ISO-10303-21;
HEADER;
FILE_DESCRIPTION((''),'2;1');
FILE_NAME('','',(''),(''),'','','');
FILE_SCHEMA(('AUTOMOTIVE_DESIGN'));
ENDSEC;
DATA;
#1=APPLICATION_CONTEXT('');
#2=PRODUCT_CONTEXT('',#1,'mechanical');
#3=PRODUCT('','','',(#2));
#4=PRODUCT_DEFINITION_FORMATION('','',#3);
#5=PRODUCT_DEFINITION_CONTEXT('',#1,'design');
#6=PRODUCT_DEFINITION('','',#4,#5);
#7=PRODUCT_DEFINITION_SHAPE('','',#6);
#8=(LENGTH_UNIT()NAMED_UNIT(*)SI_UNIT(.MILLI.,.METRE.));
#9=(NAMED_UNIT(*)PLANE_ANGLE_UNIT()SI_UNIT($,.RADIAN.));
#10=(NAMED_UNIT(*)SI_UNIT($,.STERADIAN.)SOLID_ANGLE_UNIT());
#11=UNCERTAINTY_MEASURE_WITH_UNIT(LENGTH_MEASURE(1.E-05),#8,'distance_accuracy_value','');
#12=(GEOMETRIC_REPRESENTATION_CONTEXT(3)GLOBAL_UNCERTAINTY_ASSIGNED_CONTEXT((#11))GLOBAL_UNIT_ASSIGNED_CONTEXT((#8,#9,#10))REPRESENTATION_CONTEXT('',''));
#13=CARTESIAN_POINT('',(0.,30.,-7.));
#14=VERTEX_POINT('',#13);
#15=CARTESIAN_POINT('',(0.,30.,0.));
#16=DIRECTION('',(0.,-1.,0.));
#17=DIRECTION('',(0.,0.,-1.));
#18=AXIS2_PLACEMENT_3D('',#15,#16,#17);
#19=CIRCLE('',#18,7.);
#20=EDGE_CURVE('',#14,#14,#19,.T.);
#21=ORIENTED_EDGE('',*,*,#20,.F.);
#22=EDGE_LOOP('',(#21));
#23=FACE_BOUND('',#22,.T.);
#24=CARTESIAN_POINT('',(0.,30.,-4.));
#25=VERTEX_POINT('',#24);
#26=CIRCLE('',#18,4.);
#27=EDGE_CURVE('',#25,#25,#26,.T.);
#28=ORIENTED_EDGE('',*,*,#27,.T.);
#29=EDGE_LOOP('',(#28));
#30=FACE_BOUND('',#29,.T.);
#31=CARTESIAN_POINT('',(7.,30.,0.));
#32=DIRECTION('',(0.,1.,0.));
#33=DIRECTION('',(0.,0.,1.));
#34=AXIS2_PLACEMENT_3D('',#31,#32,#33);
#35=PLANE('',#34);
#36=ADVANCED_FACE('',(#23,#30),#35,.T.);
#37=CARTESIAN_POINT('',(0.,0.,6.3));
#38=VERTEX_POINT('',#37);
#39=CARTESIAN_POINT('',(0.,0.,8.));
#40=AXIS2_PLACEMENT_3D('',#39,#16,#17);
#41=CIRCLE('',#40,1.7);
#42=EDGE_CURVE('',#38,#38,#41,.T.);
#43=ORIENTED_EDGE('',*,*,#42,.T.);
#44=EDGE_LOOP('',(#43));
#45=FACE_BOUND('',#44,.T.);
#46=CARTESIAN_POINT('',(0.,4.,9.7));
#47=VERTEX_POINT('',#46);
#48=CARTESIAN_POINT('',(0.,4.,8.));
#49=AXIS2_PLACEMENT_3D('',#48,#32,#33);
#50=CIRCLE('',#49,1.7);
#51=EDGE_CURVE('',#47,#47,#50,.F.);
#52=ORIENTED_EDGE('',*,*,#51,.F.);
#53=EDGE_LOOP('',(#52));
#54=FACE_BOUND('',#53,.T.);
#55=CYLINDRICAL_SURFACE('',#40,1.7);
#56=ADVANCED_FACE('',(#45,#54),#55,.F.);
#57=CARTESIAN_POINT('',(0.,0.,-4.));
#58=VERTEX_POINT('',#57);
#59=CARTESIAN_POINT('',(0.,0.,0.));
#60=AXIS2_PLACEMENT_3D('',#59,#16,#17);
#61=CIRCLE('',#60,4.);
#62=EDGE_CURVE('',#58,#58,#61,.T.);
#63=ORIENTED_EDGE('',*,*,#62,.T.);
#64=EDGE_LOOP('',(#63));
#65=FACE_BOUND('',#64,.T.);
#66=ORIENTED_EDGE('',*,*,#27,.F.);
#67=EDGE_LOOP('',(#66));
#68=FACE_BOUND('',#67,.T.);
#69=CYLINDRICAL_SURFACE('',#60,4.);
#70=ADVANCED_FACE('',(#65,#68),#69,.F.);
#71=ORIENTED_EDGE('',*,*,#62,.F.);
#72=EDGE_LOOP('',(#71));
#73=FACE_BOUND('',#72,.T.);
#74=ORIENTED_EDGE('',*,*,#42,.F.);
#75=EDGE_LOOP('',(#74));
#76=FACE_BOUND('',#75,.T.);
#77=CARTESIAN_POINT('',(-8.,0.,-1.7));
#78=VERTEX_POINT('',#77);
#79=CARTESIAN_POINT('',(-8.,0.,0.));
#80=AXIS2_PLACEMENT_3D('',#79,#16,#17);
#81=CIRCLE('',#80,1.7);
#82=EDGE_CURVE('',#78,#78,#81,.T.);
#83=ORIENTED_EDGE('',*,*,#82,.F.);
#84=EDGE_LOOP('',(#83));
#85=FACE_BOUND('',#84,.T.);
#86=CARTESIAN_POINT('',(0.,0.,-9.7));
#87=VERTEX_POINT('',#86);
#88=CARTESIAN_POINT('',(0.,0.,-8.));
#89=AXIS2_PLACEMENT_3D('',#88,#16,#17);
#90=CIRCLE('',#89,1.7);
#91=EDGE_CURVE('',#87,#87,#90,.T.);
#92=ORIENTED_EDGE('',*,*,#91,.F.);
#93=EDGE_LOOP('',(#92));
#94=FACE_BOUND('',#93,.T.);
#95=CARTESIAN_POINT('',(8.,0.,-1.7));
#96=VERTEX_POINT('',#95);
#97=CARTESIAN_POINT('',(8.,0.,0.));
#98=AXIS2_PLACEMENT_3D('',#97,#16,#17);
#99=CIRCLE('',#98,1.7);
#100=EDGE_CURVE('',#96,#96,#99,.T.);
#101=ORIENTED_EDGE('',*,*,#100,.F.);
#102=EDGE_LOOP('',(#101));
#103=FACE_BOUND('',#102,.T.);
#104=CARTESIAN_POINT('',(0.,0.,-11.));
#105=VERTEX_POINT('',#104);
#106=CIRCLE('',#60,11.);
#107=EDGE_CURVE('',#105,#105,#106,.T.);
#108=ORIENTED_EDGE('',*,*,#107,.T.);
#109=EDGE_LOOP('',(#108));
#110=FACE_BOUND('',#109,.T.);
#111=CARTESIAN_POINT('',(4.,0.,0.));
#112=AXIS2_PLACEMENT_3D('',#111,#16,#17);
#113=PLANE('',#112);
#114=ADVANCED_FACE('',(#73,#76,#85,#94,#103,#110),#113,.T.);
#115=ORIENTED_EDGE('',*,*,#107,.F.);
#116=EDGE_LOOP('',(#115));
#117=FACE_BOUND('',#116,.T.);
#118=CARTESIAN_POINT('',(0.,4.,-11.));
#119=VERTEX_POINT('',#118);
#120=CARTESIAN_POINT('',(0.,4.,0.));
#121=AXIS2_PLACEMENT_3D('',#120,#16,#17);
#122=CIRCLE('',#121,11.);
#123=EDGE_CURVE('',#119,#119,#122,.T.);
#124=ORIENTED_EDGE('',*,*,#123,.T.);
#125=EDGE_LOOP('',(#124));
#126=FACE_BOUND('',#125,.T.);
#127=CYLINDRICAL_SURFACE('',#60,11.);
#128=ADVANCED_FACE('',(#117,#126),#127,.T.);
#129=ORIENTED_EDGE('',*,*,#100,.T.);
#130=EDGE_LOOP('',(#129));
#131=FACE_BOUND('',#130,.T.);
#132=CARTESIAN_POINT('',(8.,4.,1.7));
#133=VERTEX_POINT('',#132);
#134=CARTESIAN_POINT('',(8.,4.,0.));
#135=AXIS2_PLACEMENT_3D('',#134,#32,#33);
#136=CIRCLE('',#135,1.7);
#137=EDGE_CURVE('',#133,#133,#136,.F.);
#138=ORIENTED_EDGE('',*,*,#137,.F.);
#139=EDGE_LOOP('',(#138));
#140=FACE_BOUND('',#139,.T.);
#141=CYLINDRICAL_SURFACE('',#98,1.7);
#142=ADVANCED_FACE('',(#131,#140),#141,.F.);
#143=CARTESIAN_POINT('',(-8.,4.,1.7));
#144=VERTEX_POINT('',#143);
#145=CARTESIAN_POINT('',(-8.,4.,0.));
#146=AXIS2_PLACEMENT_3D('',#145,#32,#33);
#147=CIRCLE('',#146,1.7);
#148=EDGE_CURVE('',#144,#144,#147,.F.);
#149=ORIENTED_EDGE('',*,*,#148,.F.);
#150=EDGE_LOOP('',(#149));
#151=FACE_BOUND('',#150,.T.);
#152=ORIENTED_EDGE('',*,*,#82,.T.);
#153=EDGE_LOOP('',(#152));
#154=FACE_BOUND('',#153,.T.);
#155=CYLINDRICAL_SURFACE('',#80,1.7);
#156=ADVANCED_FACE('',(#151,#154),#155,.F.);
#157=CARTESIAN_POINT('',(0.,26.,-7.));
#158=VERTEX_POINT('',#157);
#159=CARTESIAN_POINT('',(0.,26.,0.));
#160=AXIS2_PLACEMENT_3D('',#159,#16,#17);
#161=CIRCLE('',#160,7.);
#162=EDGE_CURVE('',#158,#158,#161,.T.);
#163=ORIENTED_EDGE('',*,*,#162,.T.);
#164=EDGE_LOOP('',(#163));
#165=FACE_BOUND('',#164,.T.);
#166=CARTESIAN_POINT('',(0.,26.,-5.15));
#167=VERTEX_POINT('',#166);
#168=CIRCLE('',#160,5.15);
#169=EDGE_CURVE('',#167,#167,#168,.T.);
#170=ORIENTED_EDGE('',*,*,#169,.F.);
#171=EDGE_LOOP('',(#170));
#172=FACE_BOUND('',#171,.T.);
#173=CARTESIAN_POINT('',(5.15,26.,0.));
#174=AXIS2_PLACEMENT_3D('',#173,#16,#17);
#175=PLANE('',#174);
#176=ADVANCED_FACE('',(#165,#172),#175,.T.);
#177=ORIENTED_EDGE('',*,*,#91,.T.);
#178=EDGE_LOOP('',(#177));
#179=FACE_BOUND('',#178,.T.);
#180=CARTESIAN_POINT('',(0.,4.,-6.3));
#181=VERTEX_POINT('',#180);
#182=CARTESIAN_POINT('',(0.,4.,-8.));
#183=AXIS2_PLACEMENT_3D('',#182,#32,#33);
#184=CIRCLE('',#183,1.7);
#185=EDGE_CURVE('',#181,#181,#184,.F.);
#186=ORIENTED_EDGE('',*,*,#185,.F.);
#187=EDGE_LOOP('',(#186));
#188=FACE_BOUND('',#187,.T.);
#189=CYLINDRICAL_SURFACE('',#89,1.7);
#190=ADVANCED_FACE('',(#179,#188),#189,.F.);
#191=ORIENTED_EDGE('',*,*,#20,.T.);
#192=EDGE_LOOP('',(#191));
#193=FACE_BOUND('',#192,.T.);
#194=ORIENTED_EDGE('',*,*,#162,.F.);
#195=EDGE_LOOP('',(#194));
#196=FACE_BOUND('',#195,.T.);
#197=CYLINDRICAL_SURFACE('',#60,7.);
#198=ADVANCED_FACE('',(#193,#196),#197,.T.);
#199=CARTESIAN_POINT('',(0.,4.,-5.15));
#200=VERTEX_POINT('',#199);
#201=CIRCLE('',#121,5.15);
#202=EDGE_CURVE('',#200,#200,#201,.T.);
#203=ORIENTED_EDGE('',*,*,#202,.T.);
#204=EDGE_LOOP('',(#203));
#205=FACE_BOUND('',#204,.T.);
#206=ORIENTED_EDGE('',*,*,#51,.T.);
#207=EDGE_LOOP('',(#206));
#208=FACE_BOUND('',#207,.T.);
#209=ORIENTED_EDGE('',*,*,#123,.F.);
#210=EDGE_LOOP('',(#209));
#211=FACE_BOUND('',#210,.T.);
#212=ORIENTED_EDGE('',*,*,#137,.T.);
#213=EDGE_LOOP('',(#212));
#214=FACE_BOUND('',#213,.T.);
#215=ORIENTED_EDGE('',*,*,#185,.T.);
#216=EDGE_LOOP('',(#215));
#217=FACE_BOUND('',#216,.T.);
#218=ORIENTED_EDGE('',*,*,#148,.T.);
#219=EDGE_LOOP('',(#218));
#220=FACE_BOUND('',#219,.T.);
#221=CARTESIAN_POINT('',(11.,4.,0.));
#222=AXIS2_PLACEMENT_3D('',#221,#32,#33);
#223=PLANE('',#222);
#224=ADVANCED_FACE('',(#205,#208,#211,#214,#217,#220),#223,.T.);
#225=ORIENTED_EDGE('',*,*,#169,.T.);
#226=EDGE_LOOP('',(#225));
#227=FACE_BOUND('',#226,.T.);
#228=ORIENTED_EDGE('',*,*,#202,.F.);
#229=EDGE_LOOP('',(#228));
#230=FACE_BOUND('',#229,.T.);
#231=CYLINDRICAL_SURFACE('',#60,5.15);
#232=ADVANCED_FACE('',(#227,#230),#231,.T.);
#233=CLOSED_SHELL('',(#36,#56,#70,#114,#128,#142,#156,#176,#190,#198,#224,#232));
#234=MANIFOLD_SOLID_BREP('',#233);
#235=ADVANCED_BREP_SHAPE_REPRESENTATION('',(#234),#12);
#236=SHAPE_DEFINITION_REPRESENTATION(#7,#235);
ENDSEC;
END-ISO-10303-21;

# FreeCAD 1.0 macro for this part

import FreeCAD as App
import Part
import Sketcher

V = App.Vector


def add_polygon(sketch, points):
    """Adds a closed chain of lines whose ends are joined by coincident constraints."""
    first, n = sketch.GeometryCount, len(points)
    for a, b in zip(points, points[1:] + points[:1]):
        sketch.addGeometry(Part.LineSegment(App.Vector(*a, 0), App.Vector(*b, 0)), False)
    for i in range(n):
        sketch.addConstraint(Sketcher.Constraint("Coincident", first + i, 2, first + (i + 1) % n, 1))

doc = App.newDocument("Part")
body = doc.addObject("PartDesign::Body", "Body")

# Sketch on XY plane
sketch1 = doc.addObject("Sketcher::SketchObject", "Sketch")
body.addObject(sketch1)
sketch1.AttachmentSupport = (doc.XY_Plane, [""])
sketch1.MapMode = "FlatFace"
add_polygon(sketch1, [(4, 30), (4, 0), (11, 0), (11, 4), (5.2, 4), (5.2, 26), (7, 26), (7, 30)])  # lines 0-7
sketch1.addConstraint([
    Sketcher.Constraint("Vertical", 0),
    Sketcher.Constraint("Horizontal", 1),
    Sketcher.Constraint("Vertical", 2),
    Sketcher.Constraint("Horizontal", 3),
    Sketcher.Constraint("Vertical", 4),
    Sketcher.Constraint("Horizontal", 5),
    Sketcher.Constraint("Vertical", 6),
    Sketcher.Constraint("Horizontal", 7),
    Sketcher.Constraint("PointOnObject", 0, 2, -1),
    Sketcher.Constraint("Equal", 2, 6),
    Sketcher.Constraint("DistanceX", 1, 1, 1, 2, 7.0),
    Sketcher.Constraint("DistanceX", 7, 2, 7, 1, 3.0),
    Sketcher.Constraint("DistanceY", 0, 2, 0, 1, 30.0),
    Sketcher.Constraint("DistanceY", 2, 1, 2, 2, 4.0),
    Sketcher.Constraint("DistanceX", -1, 1, 0, 2, 4.0),
    Sketcher.Constraint("DistanceX", 3, 2, 3, 1, 5.85),
])
revolution = doc.addObject("PartDesign::Revolution", "Revolution")
body.addObject(revolution)
revolution.Profile = sketch1
revolution.ReferenceAxis = (sketch1, ["V_Axis"])
revolution.Angle = 360

# Sketch on XZ plane
sketch2 = doc.addObject("Sketcher::SketchObject", "Sketch001")
body.addObject(sketch2)
sketch2.AttachmentSupport = (doc.XZ_Plane, [""])
sketch2.MapMode = "FlatFace"
sketch2.addGeometry(Part.Circle(V(0, 8, 0), V(0, 0, 1), 1.7), False)
sketch2.addConstraint([
    Sketcher.Constraint("PointOnObject", 0, 3, -2),
    Sketcher.Constraint("Diameter", 0, 3.4),
    Sketcher.Constraint("DistanceY", -1, 1, 0, 3, 8.0),
])
pocket1 = doc.addObject("PartDesign::Pocket", "Pocket")
body.addObject(pocket1)
pocket1.Profile = sketch2
pocket1.Type = "UpToFirst"

# Sketch on XZ plane
sketch3 = doc.addObject("Sketcher::SketchObject", "Sketch002")
body.addObject(sketch3)
sketch3.AttachmentSupport = (doc.XZ_Plane, [""])
sketch3.MapMode = "FlatFace"
sketch3.addGeometry(Part.Circle(V(8, 0, 0), V(0, 0, 1), 1.7), False)
sketch3.addConstraint([
    Sketcher.Constraint("PointOnObject", 0, 3, -1),
    Sketcher.Constraint("Diameter", 0, 3.4),
    Sketcher.Constraint("DistanceX", -1, 1, 0, 3, 8.0),
])
pocket2 = doc.addObject("PartDesign::Pocket", "Pocket001")
body.addObject(pocket2)
pocket2.Profile = sketch3
pocket2.Type = "UpToFirst"

# Sketch on XZ plane
sketch4 = doc.addObject("Sketcher::SketchObject", "Sketch003")
body.addObject(sketch4)
sketch4.AttachmentSupport = (doc.XZ_Plane, [""])
sketch4.MapMode = "FlatFace"
sketch4.addGeometry(Part.Circle(V(0, -8, 0), V(0, 0, 1), 1.7), False)
sketch4.addConstraint([
    Sketcher.Constraint("PointOnObject", 0, 3, -2),
    Sketcher.Constraint("Diameter", 0, 3.4),
    Sketcher.Constraint("DistanceY", 0, 3, -1, 1, 8.0),
])
pocket3 = doc.addObject("PartDesign::Pocket", "Pocket002")
body.addObject(pocket3)
pocket3.Profile = sketch4
pocket3.Type = "UpToFirst"

# Sketch on XZ plane
sketch5 = doc.addObject("Sketcher::SketchObject", "Sketch004")
body.addObject(sketch5)
sketch5.AttachmentSupport = (doc.XZ_Plane, [""])
sketch5.MapMode = "FlatFace"
sketch5.addGeometry(Part.Circle(V(-8, 0, 0), V(0, 0, 1), 1.7), False)
sketch5.addConstraint([
    Sketcher.Constraint("PointOnObject", 0, 3, -1),
    Sketcher.Constraint("Diameter", 0, 3.4),
    Sketcher.Constraint("DistanceX", 0, 3, -1, 1, 8.0),
])
pocket4 = doc.addObject("PartDesign::Pocket", "Pocket003")
body.addObject(pocket4)
pocket4.Profile = sketch5
pocket4.Type = "UpToFirst"

doc.recompute()
